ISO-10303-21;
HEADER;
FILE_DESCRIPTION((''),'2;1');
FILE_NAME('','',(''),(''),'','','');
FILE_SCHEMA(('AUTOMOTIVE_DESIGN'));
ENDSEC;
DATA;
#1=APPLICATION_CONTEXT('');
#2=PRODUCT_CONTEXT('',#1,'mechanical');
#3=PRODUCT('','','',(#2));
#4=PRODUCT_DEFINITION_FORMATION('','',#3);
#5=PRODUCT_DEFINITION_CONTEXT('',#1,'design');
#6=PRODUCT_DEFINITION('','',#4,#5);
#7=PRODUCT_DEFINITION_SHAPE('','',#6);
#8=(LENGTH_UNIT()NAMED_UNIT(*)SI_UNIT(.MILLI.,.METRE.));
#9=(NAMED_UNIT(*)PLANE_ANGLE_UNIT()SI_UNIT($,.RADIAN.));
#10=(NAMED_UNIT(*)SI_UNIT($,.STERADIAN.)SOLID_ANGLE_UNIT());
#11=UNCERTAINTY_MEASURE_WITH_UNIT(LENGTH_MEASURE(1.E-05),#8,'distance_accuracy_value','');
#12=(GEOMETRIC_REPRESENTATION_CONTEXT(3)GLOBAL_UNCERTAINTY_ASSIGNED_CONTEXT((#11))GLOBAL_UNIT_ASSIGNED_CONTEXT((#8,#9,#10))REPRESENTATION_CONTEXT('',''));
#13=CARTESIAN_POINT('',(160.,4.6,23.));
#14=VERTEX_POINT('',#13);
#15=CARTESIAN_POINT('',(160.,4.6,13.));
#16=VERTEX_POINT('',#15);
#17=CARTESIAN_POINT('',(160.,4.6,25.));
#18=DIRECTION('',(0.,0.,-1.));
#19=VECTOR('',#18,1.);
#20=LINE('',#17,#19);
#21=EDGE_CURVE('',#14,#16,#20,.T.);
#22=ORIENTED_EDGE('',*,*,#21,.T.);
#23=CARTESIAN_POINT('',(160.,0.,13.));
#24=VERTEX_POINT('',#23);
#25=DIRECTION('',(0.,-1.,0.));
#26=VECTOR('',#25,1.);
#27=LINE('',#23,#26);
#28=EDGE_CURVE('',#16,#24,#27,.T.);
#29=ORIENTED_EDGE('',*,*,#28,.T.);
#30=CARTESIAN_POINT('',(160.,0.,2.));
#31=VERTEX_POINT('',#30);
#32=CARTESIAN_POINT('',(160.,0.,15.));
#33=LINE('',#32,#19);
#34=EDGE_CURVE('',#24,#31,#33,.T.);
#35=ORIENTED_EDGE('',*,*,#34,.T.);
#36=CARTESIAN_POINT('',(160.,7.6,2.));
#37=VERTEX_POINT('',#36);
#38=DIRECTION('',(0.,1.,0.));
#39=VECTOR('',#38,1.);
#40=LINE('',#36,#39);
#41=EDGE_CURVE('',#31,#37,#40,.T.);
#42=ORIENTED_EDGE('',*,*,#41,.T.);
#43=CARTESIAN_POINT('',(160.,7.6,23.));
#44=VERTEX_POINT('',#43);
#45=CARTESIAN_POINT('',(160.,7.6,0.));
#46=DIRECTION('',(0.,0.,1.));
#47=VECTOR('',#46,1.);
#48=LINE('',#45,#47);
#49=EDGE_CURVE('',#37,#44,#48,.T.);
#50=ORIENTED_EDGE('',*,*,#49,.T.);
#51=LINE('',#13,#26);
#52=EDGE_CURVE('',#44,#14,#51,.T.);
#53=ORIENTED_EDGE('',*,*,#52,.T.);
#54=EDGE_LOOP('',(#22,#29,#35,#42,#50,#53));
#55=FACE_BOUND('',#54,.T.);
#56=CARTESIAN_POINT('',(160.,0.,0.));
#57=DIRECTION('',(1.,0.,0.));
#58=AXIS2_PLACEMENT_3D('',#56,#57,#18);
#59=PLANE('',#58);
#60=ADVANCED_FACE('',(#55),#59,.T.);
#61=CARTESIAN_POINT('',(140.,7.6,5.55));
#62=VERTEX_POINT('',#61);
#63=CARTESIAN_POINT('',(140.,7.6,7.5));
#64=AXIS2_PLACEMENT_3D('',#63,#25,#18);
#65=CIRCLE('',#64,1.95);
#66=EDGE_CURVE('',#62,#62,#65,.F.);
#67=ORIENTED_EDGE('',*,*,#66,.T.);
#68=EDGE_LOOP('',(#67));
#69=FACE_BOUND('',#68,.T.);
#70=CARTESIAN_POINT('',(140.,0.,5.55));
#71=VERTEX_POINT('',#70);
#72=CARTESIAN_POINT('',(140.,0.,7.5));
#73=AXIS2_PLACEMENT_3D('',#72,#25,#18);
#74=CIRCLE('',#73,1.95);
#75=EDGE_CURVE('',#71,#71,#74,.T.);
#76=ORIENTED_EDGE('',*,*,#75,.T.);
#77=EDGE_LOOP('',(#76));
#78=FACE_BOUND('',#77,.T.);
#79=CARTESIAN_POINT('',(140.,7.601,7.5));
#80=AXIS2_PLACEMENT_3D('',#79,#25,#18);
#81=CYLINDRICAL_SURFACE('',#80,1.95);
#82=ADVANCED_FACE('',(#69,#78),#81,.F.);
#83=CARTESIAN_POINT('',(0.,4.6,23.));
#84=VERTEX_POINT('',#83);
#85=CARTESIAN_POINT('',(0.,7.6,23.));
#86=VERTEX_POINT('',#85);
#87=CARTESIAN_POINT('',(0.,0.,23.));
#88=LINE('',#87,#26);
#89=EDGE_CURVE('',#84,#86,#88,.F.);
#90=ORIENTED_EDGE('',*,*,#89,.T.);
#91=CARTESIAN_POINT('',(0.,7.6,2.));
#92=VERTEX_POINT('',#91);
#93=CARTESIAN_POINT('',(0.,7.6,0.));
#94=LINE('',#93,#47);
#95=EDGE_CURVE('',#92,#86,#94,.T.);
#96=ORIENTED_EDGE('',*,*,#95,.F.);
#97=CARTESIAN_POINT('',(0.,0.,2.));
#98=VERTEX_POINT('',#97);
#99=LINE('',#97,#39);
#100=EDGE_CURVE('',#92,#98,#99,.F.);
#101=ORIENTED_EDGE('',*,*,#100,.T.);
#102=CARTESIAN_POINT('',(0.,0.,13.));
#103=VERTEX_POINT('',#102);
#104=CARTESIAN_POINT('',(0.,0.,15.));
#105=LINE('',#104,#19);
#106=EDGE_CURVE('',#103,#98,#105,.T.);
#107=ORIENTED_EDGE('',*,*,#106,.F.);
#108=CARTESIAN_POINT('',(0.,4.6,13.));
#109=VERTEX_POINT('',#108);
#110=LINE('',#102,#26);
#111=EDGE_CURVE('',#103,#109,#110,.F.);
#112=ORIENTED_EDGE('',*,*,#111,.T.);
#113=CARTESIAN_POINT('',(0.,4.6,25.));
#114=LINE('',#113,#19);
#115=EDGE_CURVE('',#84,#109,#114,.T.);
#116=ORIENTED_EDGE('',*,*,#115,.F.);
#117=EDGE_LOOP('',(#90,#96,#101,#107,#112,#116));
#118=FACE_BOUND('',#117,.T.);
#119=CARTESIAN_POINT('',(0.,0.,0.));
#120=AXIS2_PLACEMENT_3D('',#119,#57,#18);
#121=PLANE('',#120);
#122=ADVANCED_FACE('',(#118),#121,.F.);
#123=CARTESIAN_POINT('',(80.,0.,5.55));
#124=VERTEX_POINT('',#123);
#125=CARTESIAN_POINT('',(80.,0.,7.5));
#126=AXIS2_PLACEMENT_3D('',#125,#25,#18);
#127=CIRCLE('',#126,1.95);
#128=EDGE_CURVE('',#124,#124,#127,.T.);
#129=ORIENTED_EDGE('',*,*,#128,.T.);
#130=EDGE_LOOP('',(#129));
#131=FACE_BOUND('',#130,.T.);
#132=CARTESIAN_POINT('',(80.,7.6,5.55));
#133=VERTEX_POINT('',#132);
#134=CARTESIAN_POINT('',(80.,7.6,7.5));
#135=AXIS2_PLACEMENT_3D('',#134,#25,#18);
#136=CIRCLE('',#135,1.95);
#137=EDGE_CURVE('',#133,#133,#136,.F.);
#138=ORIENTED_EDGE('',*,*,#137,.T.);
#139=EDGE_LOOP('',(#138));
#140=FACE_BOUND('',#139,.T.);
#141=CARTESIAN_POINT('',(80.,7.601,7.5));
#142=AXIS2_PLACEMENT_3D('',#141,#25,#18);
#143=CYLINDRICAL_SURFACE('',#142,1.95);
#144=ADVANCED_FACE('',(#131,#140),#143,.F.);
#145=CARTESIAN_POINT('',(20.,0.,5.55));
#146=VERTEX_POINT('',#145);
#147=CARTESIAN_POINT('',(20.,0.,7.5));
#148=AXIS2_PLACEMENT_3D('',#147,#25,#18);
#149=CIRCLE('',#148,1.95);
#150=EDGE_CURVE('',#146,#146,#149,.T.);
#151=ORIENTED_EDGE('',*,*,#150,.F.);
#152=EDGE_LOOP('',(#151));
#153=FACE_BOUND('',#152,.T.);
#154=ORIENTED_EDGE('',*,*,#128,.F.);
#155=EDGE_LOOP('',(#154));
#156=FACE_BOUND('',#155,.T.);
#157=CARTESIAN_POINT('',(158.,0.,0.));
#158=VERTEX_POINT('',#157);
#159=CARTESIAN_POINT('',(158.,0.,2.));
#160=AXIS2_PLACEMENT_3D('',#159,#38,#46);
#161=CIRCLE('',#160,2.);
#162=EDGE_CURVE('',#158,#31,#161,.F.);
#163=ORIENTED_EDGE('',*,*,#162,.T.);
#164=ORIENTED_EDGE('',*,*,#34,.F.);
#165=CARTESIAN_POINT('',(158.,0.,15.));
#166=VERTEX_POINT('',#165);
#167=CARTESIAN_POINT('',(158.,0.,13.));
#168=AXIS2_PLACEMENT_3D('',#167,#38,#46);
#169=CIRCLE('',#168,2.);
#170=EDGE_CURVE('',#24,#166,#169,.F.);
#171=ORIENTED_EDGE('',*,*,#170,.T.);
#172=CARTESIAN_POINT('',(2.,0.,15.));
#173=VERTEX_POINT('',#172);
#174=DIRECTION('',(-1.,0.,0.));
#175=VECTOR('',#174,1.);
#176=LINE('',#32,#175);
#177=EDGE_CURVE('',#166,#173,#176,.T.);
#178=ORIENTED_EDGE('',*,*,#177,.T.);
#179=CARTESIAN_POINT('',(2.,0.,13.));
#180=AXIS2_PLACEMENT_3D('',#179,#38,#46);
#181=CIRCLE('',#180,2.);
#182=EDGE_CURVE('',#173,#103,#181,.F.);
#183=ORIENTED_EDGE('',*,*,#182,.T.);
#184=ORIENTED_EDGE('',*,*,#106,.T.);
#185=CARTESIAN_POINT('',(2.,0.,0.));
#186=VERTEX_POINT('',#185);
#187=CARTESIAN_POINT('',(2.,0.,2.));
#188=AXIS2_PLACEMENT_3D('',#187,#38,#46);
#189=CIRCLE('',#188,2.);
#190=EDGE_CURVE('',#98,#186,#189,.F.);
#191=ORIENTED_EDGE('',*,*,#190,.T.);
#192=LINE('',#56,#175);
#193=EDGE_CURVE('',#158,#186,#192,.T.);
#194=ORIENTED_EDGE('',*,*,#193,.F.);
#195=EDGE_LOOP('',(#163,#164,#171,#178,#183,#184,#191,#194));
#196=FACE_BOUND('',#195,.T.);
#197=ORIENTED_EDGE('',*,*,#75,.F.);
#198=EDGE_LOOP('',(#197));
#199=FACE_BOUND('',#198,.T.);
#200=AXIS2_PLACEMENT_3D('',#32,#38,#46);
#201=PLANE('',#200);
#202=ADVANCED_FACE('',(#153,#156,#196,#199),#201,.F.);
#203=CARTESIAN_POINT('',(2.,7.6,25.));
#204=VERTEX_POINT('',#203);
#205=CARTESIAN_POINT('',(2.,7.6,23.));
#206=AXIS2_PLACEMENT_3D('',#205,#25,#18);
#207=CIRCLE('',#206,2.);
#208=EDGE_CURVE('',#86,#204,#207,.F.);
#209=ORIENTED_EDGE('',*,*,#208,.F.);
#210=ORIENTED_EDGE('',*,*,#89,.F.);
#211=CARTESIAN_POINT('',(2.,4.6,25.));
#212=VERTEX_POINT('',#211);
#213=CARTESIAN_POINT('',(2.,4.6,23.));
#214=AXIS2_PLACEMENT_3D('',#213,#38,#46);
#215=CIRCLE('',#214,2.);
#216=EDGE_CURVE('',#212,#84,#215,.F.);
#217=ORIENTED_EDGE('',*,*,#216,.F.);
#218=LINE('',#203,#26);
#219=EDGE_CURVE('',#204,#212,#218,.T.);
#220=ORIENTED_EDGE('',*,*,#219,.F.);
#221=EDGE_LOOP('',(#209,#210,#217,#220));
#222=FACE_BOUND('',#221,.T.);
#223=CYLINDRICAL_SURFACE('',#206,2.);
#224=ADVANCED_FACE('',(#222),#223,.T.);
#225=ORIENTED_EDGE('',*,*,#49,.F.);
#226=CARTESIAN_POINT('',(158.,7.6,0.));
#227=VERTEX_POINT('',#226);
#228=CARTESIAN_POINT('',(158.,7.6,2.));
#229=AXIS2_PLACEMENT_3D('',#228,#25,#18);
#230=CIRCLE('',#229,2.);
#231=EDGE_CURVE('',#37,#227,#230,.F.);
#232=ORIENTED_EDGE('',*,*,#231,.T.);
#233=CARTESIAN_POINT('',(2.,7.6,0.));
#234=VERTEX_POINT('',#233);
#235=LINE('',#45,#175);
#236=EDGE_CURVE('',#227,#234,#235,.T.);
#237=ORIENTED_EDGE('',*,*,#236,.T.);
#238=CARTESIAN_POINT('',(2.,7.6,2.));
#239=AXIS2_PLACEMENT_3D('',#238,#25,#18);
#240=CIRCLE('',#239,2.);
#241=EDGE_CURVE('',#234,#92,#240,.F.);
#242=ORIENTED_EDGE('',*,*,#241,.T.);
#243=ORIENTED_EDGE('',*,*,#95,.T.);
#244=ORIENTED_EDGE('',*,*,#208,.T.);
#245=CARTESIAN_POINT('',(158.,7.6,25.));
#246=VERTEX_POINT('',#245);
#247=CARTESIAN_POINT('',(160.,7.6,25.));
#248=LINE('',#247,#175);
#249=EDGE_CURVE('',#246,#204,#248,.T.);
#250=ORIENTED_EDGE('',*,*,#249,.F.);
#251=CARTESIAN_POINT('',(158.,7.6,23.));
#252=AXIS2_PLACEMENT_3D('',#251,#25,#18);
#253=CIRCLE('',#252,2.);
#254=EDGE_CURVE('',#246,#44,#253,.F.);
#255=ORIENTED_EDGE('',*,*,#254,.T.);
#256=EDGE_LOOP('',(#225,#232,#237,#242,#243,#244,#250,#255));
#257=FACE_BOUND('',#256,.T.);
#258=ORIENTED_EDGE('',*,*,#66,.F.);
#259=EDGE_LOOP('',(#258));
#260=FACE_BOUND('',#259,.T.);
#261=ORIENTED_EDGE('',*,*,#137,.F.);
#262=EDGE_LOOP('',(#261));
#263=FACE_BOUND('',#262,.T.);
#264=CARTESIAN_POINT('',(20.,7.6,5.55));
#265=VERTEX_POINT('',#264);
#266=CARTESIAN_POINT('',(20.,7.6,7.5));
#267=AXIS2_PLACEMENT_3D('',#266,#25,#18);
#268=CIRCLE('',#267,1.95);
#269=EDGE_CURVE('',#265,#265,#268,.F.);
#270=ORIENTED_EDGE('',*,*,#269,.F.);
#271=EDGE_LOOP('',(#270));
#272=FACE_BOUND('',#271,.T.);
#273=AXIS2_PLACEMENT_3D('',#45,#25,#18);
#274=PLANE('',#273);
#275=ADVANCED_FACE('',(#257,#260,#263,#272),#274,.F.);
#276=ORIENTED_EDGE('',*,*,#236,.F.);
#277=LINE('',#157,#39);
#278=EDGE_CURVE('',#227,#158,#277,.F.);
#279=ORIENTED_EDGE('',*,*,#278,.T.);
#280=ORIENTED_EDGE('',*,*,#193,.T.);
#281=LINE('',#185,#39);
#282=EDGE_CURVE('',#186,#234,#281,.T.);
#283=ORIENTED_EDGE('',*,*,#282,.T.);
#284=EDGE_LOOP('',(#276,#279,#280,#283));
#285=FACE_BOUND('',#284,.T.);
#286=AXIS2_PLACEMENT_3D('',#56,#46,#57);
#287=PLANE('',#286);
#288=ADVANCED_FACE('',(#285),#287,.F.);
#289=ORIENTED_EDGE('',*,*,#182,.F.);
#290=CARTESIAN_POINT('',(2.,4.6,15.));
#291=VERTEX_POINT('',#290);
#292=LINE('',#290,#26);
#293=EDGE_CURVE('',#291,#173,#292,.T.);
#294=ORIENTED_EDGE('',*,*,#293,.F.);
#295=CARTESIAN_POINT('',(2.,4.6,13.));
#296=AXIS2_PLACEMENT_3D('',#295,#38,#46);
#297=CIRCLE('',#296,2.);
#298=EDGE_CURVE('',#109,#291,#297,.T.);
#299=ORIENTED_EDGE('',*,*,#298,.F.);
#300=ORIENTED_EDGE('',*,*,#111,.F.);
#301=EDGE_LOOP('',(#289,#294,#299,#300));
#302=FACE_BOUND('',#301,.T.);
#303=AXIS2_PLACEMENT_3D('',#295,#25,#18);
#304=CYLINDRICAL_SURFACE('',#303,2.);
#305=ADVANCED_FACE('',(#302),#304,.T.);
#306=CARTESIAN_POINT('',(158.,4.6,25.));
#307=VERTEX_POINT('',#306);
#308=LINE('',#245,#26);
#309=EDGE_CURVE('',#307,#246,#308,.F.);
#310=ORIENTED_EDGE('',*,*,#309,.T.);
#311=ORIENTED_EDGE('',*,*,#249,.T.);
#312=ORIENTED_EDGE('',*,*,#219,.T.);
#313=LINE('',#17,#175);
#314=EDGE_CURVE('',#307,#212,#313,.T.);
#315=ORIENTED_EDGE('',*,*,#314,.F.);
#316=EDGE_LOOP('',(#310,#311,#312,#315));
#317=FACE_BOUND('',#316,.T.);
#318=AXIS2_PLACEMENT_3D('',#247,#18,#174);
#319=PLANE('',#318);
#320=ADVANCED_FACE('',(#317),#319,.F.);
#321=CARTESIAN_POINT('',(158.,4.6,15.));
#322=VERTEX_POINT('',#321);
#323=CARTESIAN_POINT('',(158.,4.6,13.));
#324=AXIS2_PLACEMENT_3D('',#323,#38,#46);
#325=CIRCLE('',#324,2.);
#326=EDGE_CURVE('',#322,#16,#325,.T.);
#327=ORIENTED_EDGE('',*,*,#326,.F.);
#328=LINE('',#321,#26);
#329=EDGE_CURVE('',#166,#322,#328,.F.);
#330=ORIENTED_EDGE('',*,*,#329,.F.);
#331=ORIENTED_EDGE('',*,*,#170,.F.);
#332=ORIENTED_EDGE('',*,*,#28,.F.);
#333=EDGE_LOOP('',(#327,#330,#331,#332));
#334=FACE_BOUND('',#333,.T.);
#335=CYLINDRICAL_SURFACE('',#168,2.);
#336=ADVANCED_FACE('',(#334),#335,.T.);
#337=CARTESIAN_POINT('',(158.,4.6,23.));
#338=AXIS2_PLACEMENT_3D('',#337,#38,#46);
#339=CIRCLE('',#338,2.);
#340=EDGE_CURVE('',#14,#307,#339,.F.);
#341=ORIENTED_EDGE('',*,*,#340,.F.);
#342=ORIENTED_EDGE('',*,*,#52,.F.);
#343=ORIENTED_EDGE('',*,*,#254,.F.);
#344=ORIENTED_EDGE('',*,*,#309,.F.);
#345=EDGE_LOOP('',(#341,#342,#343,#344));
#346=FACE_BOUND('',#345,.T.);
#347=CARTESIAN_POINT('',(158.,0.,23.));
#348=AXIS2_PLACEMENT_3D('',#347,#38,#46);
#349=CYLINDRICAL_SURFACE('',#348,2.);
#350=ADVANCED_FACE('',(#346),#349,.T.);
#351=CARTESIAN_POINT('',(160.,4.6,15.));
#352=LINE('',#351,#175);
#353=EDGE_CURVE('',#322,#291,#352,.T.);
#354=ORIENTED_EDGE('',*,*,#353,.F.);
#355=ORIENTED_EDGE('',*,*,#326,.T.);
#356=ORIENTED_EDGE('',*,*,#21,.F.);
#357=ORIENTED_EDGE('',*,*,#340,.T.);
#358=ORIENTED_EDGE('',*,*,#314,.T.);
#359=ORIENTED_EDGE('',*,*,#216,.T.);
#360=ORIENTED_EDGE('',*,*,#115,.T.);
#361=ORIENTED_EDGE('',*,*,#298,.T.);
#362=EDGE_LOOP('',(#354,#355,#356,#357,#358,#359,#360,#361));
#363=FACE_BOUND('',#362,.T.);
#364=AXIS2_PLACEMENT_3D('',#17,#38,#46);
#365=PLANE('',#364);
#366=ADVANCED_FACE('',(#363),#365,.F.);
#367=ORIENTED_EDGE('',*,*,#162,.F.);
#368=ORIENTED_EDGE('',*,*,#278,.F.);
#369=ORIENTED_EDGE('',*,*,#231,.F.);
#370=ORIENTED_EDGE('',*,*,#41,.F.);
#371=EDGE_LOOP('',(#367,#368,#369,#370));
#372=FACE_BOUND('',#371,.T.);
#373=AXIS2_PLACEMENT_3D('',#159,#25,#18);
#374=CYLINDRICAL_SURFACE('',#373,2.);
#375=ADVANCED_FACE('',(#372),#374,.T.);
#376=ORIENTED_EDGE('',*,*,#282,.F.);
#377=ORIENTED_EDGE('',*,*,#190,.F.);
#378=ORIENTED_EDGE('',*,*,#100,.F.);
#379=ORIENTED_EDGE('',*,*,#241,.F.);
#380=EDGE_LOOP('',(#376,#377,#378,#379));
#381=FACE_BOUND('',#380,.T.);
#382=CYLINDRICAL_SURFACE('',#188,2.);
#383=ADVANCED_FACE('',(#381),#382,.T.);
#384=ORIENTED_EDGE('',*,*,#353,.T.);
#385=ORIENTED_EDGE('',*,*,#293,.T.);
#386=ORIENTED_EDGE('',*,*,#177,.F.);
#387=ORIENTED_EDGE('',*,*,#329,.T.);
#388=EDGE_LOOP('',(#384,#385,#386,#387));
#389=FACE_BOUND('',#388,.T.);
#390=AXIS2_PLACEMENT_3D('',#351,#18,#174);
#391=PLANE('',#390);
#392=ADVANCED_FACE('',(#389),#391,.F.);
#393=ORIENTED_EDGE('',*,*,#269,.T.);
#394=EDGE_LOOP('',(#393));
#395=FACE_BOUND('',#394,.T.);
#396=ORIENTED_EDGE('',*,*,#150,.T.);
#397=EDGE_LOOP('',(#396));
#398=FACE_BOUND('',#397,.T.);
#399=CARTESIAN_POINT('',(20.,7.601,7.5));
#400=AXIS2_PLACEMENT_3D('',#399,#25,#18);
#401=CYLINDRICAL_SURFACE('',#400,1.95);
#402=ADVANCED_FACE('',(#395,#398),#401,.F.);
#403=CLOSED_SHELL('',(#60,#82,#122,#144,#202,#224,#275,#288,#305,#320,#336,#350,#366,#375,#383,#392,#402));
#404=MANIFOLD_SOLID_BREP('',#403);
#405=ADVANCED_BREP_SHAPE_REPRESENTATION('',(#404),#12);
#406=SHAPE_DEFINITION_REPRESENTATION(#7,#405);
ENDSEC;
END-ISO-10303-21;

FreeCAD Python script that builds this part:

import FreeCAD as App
import Part
import Sketcher

V = App.Vector


def edges_at(feature, points):
    """Names of the edges that pass closest to the given points."""
    edges = feature.Shape.Edges
    near = lambda p: min(range(len(edges)), key=lambda i: edges[i].distToShape(Part.Vertex(*p))[0])
    return sorted({f"Edge{near(p) + 1}" for p in points})


def add_polygon(sketch, points):
    """Adds a closed chain of lines whose ends are joined by coincident constraints."""
    first, n = sketch.GeometryCount, len(points)
    for a, b in zip(points, points[1:] + points[:1]):
        sketch.addGeometry(Part.LineSegment(App.Vector(*a, 0), App.Vector(*b, 0)), False)
    for i in range(n):
        sketch.addConstraint(Sketcher.Constraint("Coincident", first + i, 2, first + (i + 1) % n, 1))

doc = App.newDocument("Part")
body = doc.addObject("PartDesign::Body", "Body")

sketch1 = doc.addObject("Sketcher::SketchObject", "Sketch")
body.addObject(sketch1)
sketch1.AttachmentSupport = (doc.YZ_Plane, [""])
sketch1.MapMode = "FlatFace"
add_polygon(sketch1, [(0, 0), (7.6, 0), (7.6, 25), (4.6, 25), (4.6, 15), (0, 15)])
sketch1.addConstraint([
    Sketcher.Constraint("Horizontal", 0),
    Sketcher.Constraint("Vertical", 1),
    Sketcher.Constraint("Horizontal", 2),
    Sketcher.Constraint("Vertical", 3),
    Sketcher.Constraint("Horizontal", 4),
    Sketcher.Constraint("Vertical", 5),
    Sketcher.Constraint("Coincident", 5, 2, -1, 1),
    Sketcher.Constraint("DistanceX", 2, 2, 2, 1, 3.0),
    Sketcher.Constraint("DistanceY", 1, 1, 1, 2, 25.0),
    Sketcher.Constraint("DistanceY", 3, 2, 3, 1, 10.0),
    Sketcher.Constraint("DistanceX", 0, 1, 0, 2, 7.6),
])
pad1 = doc.addObject("PartDesign::Pad", "Pad")
body.addObject(pad1)
pad1.Profile = sketch1
pad1.Length = 160

sketch2 = doc.addObject("Sketcher::SketchObject", "Sketch001")
body.addObject(sketch2)
sketch2.AttachmentSupport = (doc.XZ_Plane, [""])
sketch2.MapMode = "FlatFace"
sketch2.addGeometry(Part.Circle(V(20, 7.5, 0), V(0, 0, 1), 1.9), False)
sketch2.addConstraint([
    Sketcher.Constraint("Diameter", 0, 3.9),
    Sketcher.Constraint("DistanceX", -1, 1, 0, 3, 20.0),
    Sketcher.Constraint("DistanceY", -1, 1, 0, 3, 7.5),
])
pocket1 = doc.addObject("PartDesign::Pocket", "Pocket")
body.addObject(pocket1)
pocket1.Profile = sketch2
pocket1.Type = "UpToFirst"

sketch3 = doc.addObject("Sketcher::SketchObject", "Sketch002")
body.addObject(sketch3)
sketch3.AttachmentSupport = (doc.XZ_Plane, [""])
sketch3.MapMode = "FlatFace"
sketch3.addGeometry(Part.Circle(V(140, 7.5, 0), V(0, 0, 1), 1.9), False)
sketch3.addConstraint([
    Sketcher.Constraint("Diameter", 0, 3.9),
    Sketcher.Constraint("DistanceX", -1, 1, 0, 3, 140.0),
    Sketcher.Constraint("DistanceY", -1, 1, 0, 3, 7.5),
])
pocket2 = doc.addObject("PartDesign::Pocket", "Pocket001")
body.addObject(pocket2)
pocket2.Profile = sketch3
pocket2.Type = "UpToFirst"

sketch4 = doc.addObject("Sketcher::SketchObject", "Sketch003")
body.addObject(sketch4)
sketch4.AttachmentSupport = (doc.XZ_Plane, [""])
sketch4.MapMode = "FlatFace"
sketch4.addGeometry(Part.Circle(V(80, 7.5, 0), V(0, 0, 1), 1.9), False)
sketch4.addConstraint([
    Sketcher.Constraint("Diameter", 0, 3.9),
    Sketcher.Constraint("DistanceX", -1, 1, 0, 3, 80.0),
    Sketcher.Constraint("DistanceY", -1, 1, 0, 3, 7.5),
])
pocket3 = doc.addObject("PartDesign::Pocket", "Pocket002")
body.addObject(pocket3)
pocket3.Profile = sketch4
pocket3.Type = "UpToFirst"
doc.recompute()

fillet = doc.addObject("PartDesign::Fillet", "Fillet")
body.addObject(fillet)
fillet.Base = (pocket3, edges_at(pocket3, [
    (160, 6.1, 25),
    (160, 2.3, 15),
    (0, 2.3, 15),
    (0, 6.1, 25),
    (0, 3.8, 0),
    (160, 3.8, 0),
]))
fillet.Radius = 2

doc.recompute()
